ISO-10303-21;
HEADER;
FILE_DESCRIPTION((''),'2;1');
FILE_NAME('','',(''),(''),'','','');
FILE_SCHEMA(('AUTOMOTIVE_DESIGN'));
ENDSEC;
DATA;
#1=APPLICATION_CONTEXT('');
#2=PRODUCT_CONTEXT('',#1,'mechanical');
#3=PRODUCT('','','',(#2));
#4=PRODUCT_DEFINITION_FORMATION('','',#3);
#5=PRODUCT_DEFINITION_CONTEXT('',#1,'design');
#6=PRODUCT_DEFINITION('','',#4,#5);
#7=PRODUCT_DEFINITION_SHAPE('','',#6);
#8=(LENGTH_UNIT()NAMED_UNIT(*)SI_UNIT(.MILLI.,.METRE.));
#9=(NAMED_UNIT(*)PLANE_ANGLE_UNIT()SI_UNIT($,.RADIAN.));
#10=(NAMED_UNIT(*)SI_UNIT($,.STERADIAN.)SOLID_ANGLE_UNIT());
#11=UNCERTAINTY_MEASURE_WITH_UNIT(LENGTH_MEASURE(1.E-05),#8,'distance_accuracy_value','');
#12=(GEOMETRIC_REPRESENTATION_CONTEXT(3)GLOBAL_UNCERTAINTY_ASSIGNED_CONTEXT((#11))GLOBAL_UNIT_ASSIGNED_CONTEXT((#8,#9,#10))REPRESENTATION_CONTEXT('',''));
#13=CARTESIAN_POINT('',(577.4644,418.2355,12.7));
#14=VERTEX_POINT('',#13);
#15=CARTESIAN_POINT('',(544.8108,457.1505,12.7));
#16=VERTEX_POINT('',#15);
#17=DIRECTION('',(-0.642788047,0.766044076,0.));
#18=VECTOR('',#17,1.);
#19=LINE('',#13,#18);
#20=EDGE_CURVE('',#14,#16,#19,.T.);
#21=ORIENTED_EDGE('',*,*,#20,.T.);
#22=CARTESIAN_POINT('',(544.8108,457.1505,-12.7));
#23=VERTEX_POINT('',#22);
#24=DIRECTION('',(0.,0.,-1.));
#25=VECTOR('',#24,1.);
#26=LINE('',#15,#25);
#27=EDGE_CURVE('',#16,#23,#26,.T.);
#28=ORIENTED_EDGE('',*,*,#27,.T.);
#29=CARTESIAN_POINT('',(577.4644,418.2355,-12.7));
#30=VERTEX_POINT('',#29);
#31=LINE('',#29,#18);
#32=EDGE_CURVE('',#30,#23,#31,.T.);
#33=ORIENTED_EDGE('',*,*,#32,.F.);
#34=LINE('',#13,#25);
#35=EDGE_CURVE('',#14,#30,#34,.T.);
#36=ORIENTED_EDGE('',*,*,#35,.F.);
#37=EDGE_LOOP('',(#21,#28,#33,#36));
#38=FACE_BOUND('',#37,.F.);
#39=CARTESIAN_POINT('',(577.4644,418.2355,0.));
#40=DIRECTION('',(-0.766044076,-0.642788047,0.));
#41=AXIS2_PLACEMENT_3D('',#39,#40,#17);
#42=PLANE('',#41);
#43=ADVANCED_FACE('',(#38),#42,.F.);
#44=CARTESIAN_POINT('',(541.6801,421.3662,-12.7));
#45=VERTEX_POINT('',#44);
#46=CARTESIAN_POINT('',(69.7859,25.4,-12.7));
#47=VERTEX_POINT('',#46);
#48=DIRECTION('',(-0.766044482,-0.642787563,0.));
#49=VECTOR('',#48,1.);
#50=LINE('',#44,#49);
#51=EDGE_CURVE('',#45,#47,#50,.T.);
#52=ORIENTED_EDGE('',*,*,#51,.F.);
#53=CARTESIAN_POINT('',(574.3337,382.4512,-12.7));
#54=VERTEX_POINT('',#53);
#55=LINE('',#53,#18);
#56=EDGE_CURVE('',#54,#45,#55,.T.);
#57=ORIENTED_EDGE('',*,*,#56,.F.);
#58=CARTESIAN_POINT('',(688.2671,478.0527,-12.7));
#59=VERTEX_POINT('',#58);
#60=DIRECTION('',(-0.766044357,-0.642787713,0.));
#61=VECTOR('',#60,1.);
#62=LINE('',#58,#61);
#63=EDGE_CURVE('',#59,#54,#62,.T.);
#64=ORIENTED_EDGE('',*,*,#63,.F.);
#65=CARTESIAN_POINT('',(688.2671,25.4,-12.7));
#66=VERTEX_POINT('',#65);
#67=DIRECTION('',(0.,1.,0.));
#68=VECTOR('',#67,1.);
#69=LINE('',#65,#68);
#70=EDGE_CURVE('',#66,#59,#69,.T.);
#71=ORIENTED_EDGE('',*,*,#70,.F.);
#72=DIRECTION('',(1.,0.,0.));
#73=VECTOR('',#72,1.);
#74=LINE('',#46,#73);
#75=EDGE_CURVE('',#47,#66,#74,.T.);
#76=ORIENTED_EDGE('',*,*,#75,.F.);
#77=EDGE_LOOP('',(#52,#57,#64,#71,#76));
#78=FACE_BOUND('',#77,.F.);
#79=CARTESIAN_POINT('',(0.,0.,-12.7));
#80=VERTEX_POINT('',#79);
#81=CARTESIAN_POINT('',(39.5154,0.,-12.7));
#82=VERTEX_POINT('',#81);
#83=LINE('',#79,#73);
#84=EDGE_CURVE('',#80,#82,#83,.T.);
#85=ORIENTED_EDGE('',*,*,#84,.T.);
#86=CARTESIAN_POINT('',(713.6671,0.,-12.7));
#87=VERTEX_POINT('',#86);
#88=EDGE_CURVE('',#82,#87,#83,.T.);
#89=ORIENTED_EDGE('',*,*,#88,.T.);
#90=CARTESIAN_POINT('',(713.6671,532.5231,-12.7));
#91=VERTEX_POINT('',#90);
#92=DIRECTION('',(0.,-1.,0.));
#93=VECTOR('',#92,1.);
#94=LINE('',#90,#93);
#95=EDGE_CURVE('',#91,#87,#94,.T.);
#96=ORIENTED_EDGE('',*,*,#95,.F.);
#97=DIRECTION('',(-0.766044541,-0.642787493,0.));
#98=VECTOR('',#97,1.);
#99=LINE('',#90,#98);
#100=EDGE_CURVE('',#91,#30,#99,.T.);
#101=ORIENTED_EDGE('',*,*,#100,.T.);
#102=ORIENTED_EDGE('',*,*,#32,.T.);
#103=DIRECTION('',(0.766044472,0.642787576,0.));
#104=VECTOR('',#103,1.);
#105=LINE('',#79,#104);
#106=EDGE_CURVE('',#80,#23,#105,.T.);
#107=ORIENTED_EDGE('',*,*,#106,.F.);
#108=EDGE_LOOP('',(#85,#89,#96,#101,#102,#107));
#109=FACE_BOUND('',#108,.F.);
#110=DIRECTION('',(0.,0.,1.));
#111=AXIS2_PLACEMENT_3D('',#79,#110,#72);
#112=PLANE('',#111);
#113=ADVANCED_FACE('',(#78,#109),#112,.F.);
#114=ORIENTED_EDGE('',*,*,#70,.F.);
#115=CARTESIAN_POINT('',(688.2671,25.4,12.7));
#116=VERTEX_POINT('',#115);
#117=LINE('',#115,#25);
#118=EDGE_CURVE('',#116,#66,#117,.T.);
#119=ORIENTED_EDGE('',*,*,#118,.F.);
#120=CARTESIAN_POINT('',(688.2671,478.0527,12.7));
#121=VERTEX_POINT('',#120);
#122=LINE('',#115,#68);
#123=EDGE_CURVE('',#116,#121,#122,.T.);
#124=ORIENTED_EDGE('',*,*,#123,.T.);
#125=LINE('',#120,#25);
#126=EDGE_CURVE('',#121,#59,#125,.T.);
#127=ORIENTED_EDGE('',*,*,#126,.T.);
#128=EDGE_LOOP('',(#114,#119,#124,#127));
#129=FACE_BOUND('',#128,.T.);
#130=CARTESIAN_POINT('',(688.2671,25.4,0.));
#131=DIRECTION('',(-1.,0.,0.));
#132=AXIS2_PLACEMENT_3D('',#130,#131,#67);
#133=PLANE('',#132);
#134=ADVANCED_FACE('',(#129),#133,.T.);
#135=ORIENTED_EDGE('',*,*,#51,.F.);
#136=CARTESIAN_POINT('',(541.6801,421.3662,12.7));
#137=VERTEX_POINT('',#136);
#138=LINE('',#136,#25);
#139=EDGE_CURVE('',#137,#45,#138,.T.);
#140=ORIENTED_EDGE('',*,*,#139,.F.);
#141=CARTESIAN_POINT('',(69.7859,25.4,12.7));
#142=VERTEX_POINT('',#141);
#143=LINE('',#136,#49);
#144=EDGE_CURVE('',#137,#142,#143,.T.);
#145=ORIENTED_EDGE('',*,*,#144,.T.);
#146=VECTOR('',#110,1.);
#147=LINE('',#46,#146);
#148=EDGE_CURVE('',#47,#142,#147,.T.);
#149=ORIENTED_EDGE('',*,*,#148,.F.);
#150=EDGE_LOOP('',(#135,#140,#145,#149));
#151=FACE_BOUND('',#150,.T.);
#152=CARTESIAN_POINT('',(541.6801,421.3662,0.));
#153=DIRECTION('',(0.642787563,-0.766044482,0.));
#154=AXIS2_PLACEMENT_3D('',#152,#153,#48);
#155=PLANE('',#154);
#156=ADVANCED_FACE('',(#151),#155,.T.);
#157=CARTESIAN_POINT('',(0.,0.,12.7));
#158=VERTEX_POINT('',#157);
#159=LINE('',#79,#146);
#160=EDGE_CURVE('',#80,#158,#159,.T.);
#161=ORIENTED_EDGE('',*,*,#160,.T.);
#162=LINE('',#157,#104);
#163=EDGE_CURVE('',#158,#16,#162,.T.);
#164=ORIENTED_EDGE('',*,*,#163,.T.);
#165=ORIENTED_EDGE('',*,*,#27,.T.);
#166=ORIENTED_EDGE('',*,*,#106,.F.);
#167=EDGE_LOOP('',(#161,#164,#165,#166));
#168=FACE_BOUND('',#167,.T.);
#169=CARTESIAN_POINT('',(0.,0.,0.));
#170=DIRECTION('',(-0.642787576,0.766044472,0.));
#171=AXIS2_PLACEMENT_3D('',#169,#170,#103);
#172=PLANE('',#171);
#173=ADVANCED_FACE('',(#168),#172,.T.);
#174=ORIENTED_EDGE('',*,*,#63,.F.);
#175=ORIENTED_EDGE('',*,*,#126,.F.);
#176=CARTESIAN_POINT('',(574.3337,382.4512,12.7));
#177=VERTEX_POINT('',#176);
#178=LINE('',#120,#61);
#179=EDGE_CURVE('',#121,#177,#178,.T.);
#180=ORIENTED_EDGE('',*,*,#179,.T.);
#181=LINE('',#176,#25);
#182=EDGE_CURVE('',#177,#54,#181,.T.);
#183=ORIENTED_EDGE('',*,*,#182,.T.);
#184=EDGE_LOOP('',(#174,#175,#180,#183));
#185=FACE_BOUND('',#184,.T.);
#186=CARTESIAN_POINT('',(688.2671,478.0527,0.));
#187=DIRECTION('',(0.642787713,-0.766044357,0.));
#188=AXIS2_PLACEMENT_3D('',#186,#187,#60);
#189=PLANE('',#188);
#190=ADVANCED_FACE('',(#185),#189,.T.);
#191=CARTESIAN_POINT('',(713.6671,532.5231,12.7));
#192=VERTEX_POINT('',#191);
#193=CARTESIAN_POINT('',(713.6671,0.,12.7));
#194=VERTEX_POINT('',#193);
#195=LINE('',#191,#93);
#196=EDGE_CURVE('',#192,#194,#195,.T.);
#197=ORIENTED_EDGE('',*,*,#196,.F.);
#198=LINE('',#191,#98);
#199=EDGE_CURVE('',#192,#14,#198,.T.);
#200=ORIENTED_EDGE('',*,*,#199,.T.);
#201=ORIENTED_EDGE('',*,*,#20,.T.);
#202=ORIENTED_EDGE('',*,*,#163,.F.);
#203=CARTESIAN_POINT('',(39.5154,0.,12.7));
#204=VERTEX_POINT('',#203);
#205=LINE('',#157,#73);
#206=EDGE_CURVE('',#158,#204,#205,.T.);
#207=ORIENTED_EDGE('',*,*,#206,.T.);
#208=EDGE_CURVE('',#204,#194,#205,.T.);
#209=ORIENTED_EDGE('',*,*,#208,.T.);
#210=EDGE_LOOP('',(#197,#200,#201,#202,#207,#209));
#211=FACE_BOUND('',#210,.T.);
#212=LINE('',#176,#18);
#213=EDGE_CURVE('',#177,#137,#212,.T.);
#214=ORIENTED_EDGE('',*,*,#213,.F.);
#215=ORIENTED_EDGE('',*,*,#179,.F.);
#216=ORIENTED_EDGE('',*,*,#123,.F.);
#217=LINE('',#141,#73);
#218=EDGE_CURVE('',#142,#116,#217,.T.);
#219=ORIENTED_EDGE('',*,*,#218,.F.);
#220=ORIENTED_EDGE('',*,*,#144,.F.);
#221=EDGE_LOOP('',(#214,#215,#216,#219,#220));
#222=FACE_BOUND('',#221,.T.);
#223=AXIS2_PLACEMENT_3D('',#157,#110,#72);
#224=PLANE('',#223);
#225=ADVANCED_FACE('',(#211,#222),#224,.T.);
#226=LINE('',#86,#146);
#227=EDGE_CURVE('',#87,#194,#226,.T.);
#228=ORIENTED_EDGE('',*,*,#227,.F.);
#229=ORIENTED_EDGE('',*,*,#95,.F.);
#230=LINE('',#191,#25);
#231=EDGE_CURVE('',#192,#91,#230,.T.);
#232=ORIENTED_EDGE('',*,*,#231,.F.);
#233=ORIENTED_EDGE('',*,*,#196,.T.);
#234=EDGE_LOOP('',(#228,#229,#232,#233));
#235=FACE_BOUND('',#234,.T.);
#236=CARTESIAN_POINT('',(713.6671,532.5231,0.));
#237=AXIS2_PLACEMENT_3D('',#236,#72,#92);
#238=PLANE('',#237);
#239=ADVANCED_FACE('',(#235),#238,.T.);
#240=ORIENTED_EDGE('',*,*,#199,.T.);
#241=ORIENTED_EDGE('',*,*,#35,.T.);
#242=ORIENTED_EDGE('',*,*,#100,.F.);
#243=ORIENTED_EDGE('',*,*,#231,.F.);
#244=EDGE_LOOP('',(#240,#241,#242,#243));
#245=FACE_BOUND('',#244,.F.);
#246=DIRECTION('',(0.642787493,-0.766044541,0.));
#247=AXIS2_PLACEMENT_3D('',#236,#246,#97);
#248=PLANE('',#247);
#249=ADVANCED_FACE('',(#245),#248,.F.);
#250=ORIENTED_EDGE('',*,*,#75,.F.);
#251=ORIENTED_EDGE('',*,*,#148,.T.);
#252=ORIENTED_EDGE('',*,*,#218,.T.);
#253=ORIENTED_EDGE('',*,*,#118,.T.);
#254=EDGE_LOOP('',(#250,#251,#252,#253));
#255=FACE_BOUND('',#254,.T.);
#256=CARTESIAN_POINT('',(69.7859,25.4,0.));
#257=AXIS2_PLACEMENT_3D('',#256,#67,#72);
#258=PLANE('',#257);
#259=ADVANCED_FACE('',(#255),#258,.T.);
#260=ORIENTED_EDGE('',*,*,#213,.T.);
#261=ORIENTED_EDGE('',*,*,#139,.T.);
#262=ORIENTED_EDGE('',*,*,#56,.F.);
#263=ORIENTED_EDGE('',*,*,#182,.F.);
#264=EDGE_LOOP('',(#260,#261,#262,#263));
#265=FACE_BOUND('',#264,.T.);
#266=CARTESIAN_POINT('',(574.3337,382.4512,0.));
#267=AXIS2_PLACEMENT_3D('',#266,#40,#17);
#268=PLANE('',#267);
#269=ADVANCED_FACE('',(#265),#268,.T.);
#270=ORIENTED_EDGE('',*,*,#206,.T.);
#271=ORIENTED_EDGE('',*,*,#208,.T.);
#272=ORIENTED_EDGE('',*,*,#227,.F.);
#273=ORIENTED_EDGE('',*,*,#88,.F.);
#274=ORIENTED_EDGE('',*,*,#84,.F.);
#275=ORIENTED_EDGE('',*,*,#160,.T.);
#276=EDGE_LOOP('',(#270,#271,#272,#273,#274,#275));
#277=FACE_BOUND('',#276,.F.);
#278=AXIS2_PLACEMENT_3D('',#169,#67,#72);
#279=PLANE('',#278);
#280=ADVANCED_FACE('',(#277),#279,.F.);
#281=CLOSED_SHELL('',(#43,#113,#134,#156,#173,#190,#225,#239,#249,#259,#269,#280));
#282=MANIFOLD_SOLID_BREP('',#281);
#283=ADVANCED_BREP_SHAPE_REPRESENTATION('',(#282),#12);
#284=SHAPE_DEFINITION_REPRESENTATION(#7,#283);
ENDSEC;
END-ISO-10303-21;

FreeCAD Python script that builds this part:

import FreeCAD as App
import Part
import Sketcher
from FreeCAD import Vector
Q = App.Units.Quantity

doc = App.newDocument("Part")
body = doc.addObject("PartDesign::Body", "Body")

# Sketch on XY plane
sketch1 = body.newObject("Sketcher::SketchObject", "Sketch")
sketch1.AttachmentSupport = (doc.getObject("XY_Plane"), [""])
sketch1.MapMode = "FlatFace"
sketch1.addGeometry(Part.LineSegment(Vector(544.8108, 457.1505, 0), Vector(0, 0, 0)), False)
sketch1.addGeometry(Part.LineSegment(Vector(0, 0, 0), Vector(39.5154, 0, 0)), False)
sketch1.addGeometry(Part.LineSegment(Vector(39.5154, 0, 0), Vector(713.6671, 0, 0)), False)
sketch1.addGeometry(Part.LineSegment(Vector(713.6671, 0, 0), Vector(713.6671, 532.5231, 0)), False)
sketch1.addGeometry(Part.LineSegment(Vector(713.6671, 532.5231, 0), Vector(577.4644, 418.2355, 0)), False)
sketch1.addGeometry(Part.LineSegment(Vector(577.4644, 418.2355, 0), Vector(544.8108, 457.1505, 0)), False)
sketch1.addGeometry(Part.LineSegment(Vector(688.2671, 25.4, 0), Vector(69.7859, 25.4, 0)), False)
sketch1.addGeometry(Part.LineSegment(Vector(69.7859, 25.4, 0), Vector(541.6801, 421.3662, 0)), False)
sketch1.addGeometry(Part.LineSegment(Vector(541.6801, 421.3662, 0), Vector(574.3337, 382.4512, 0)), False)
sketch1.addGeometry(Part.LineSegment(Vector(574.3337, 382.4512, 0), Vector(688.2671, 478.0527, 0)), False)
sketch1.addGeometry(Part.LineSegment(Vector(688.2671, 478.0527, 0), Vector(688.2671, 25.4, 0)), False)
sketch1.addConstraint(Sketcher.Constraint("Coincident", 0, 2, 1, 1))
sketch1.addConstraint(Sketcher.Constraint("Coincident", 1, 2, 2, 1))
sketch1.addConstraint(Sketcher.Constraint("Coincident", 2, 2, 3, 1))
sketch1.addConstraint(Sketcher.Constraint("Coincident", 3, 2, 4, 1))
sketch1.addConstraint(Sketcher.Constraint("Coincident", 4, 2, 5, 1))
sketch1.addConstraint(Sketcher.Constraint("Coincident", 5, 2, 0, 1))
sketch1.addConstraint(Sketcher.Constraint("Coincident", 6, 2, 7, 1))
sketch1.addConstraint(Sketcher.Constraint("Coincident", 7, 2, 8, 1))
sketch1.addConstraint(Sketcher.Constraint("Coincident", 8, 2, 9, 1))
sketch1.addConstraint(Sketcher.Constraint("Coincident", 9, 2, 10, 1))
sketch1.addConstraint(Sketcher.Constraint("Coincident", 10, 2, 6, 1))
sketch1.addConstraint(Sketcher.Constraint("Horizontal", 1))
sketch1.addConstraint(Sketcher.Constraint("Horizontal", 2))
sketch1.addConstraint(Sketcher.Constraint("Vertical", 3))
sketch1.addConstraint(Sketcher.Constraint("Horizontal", 6))
sketch1.addConstraint(Sketcher.Constraint("Vertical", 10))
sketch1.addConstraint(Sketcher.Constraint("Coincident", 0, 2, -1, 1))
sketch1.addConstraint(Sketcher.Constraint("Parallel", 0, 4))
sketch1.addConstraint(Sketcher.Constraint("Perpendicular", 4, 5))
sketch1.addConstraint(Sketcher.Constraint("Perpendicular", 5, 7))
sketch1.addConstraint(Sketcher.Constraint("Perpendicular", 7, 8))
sketch1.addConstraint(Sketcher.Constraint("Perpendicular", 8, 9))
sketch1.addConstraint(Sketcher.Constraint("Equal", 5, 8))
sketch1.addConstraint(Sketcher.Constraint("Distance", 0, Q("28 in")))
sketch1.addConstraint(Sketcher.Constraint("Distance", 4, Q("7 in")))
sketch1.addConstraint(Sketcher.Constraint("Distance", 5, Q("2 in")))
sketch1.addConstraint(Sketcher.Constraint("DistanceY", -1, 1, 6, 2, Q("1 in")))
sketch1.addConstraint(Sketcher.Constraint("Angle", 7, Q("40 deg")))
sketch1.addConstraint(Sketcher.Constraint("DistanceX", 9, 2, 3, 2, Q("1 in")))
sketch1.addConstraint(Sketcher.Constraint("DistanceX", 6, 2, 6, 1, Q("618.4812 mm")))
sketch1.addConstraint(Sketcher.Constraint("DistanceX", 2, 1, 2, 2, Q("26.5414 in")))
sketch1.addConstraint(Sketcher.Constraint("DistanceX", -1, 1, 7, 2, Q("21.326 in")))
pad1 = body.newObject("PartDesign::Pad", "Pad")
pad1.Profile = sketch1
pad1.Length = Q("1 in")
pad1.Midplane = True

doc.recompute()
